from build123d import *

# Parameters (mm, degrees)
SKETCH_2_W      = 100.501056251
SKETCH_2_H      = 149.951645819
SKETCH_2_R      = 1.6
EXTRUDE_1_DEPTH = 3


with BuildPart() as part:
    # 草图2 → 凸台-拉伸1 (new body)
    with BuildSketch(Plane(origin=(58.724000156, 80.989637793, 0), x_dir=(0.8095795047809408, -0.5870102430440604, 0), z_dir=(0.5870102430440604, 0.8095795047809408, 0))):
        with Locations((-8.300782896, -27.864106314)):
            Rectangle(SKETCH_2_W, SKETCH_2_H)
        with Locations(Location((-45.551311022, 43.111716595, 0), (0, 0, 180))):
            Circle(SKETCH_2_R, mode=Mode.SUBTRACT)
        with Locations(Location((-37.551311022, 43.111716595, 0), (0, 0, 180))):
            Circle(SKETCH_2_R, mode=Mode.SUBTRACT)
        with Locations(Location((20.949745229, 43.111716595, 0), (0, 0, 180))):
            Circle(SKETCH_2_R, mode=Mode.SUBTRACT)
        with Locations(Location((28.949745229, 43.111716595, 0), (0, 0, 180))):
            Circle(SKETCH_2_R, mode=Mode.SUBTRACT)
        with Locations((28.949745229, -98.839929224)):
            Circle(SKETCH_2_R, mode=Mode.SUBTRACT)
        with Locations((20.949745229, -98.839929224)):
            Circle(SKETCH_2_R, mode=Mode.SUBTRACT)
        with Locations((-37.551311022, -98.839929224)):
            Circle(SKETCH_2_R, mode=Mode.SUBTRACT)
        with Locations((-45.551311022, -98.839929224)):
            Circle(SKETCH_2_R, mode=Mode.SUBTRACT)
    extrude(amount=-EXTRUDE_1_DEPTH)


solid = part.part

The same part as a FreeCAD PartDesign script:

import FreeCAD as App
import Part
import Sketcher
Q = App.Units.Quantity

doc = App.newDocument("Part")
body = doc.addObject("PartDesign::Body", "Body")

# Sketch on an angled plane
sketch1 = doc.addObject("Sketcher::SketchObject", "Sketch")
body.addObject(sketch1)
sketch1.Placement = App.Placement(App.Vector(58.724, 80.989638, 0), App.Rotation(App.Vector(0.809579505, -0.587010243, 0), App.Vector(0, 0, -1), App.Vector(0.587010243, 0.809579505, 0), "ZXY"))
sketch1.addGeometry([
    Part.LineSegment(App.Vector(-58.6, 47.1, 0), App.Vector(-58.6, -102.8, 0)),  # 0
    Part.LineSegment(App.Vector(-58.6, -102.8, 0), App.Vector(41.9, -102.8, 0)),  # 1
    Part.LineSegment(App.Vector(41.9, -102.8, 0), App.Vector(41.9, 47.1, 0)),  # 2
    Part.LineSegment(App.Vector(41.9, 47.1, 0), App.Vector(-58.6, 47.1, 0)),  # 3
    Part.Circle(App.Vector(-45.6, -98.8, 0), App.Vector(0, 0, 1), 1.6),  # 4
    Part.Circle(App.Vector(-37.6, -98.8, 0), App.Vector(0, 0, 1), 1.6),  # 5
    Part.Circle(App.Vector(20.9, -98.8, 0), App.Vector(0, 0, 1), 1.6),  # 6
    Part.Circle(App.Vector(28.9, -98.8, 0), App.Vector(0, 0, 1), 1.6),  # 7
    Part.Circle(App.Vector(-45.6, 43.1, 0), App.Vector(0, 0, 1), 1.6),  # 8
    Part.Circle(App.Vector(-37.6, 43.1, 0), App.Vector(0, 0, 1), 1.6),  # 9
    Part.Circle(App.Vector(20.9, 43.1, 0), App.Vector(0, 0, 1), 1.6),  # 10
    Part.Circle(App.Vector(28.9, 43.1, 0), App.Vector(0, 0, 1), 1.6),  # 11
], False)
sketch1.addConstraint([
    Sketcher.Constraint("Coincident", 0, 2, 1, 1),
    Sketcher.Constraint("Coincident", 1, 2, 2, 1),
    Sketcher.Constraint("Coincident", 2, 2, 3, 1),
    Sketcher.Constraint("Coincident", 3, 2, 0, 1),
    Sketcher.Constraint("Vertical", 0),
    Sketcher.Constraint("Horizontal", 1),
    Sketcher.Constraint("Vertical", 2),
    Sketcher.Constraint("Horizontal", 3),
    Sketcher.Constraint("Equal", 4, 5),
    Sketcher.Constraint("Equal", 5, 6),
    Sketcher.Constraint("Equal", 6, 7),
    Sketcher.Constraint("Equal", 7, 8),
    Sketcher.Constraint("Equal", 8, 9),
    Sketcher.Constraint("Equal", 9, 10),
    Sketcher.Constraint("Equal", 10, 11),
    Sketcher.Constraint("Horizontal", 4, 3, 5, 3),
    Sketcher.Constraint("Horizontal", 5, 3, 6, 3),
    Sketcher.Constraint("Horizontal", 6, 3, 7, 3),
    Sketcher.Constraint("Horizontal", 8, 3, 9, 3),
    Sketcher.Constraint("Horizontal", 9, 3, 10, 3),
    Sketcher.Constraint("Horizontal", 10, 3, 11, 3),
    Sketcher.Constraint("Vertical", 4, 3, 8, 3),
    Sketcher.Constraint("Vertical", 5, 3, 9, 3),
    Sketcher.Constraint("Vertical", 6, 3, 10, 3),
    Sketcher.Constraint("Vertical", 7, 3, 11, 3),
    Sketcher.Constraint("Diameter", 4, Q("3.2 mm")),
    Sketcher.Constraint("DistanceX", 4, 3, 5, 3, Q("8 mm")),
    Sketcher.Constraint("DistanceX", 6, 3, 7, 3, Q("8 mm")),
    Sketcher.Constraint("DistanceX", 0, 2, 4, 3, Q("13 mm")),
    Sketcher.Constraint("DistanceY", 0, 2, 4, 3, Q("4 mm")),
    Sketcher.Constraint("DistanceX", 7, 3, 1, 2, Q("13 mm")),
    Sketcher.Constraint("DistanceY", 11, 3, 2, 2, Q("4 mm")),
    Sketcher.Constraint("DistanceX", 1, 1, 1, 2, Q("100.501056 mm")),
    Sketcher.Constraint("DistanceY", 0, 2, 0, 1, Q("149.951646 mm")),
    Sketcher.Constraint("DistanceX", 4, 3, -1, 1, Q("45.551311 mm")),
    Sketcher.Constraint("DistanceY", 4, 3, -1, 1, Q("98.839929 mm")),
])
pad1 = doc.addObject("PartDesign::Pad", "Pad")
body.addObject(pad1)
pad1.Profile = sketch1
pad1.Length = 3
pad1.Reversed = True

doc.recompute()
